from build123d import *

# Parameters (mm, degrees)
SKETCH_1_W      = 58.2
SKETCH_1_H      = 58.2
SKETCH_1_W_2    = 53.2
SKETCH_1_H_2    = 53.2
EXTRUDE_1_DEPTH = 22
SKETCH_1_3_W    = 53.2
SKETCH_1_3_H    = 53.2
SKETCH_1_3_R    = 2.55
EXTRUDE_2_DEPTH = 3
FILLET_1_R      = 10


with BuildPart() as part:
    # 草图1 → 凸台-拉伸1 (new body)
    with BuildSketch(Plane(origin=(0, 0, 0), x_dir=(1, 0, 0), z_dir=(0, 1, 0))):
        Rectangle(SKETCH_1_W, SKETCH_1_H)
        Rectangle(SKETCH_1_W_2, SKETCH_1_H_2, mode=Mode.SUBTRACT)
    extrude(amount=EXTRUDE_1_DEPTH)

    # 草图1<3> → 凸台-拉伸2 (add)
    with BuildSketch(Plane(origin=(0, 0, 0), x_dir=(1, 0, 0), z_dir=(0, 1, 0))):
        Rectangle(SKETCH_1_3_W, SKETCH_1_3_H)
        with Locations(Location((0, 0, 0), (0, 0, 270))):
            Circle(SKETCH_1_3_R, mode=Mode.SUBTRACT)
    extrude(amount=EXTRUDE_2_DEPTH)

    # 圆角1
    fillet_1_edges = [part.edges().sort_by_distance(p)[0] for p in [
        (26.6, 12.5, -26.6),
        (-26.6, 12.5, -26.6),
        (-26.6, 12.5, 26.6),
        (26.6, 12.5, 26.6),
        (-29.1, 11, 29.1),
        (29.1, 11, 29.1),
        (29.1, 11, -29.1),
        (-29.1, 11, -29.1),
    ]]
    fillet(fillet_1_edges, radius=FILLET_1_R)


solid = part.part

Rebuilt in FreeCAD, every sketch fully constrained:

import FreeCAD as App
import Part
import Sketcher
from FreeCAD import Vector


def edges_at(feature, points):
    """Names of the edges that pass closest to the given points."""
    edges = feature.Shape.Edges
    near = lambda p: min(range(len(edges)), key=lambda i: edges[i].distToShape(Part.Vertex(*p))[0])
    return sorted({f"Edge{near(p) + 1}" for p in points})

doc = App.newDocument("Part")
body = doc.addObject("PartDesign::Body", "Body")

sketch1 = body.newObject("Sketcher::SketchObject", "Sketch")
sketch1.AttachmentSupport = (doc.getObject("XZ_Plane"), [""])
sketch1.MapMode = "FlatFace"
sketch1.addGeometry(Part.LineSegment(Vector(-29, -29, 0), Vector(-29, 29, 0)), False)
sketch1.addGeometry(Part.LineSegment(Vector(-29, 29, 0), Vector(29, 29, 0)), False)
sketch1.addGeometry(Part.LineSegment(Vector(29, 29, 0), Vector(29, -29, 0)), False)
sketch1.addGeometry(Part.LineSegment(Vector(29, -29, 0), Vector(-29, -29, 0)), False)
sketch1.addGeometry(Part.LineSegment(Vector(27, 27, 0), Vector(-27, 27, 0)), False)
sketch1.addGeometry(Part.LineSegment(Vector(-27, 27, 0), Vector(-27, -27, 0)), False)
sketch1.addGeometry(Part.LineSegment(Vector(-27, -27, 0), Vector(27, -27, 0)), False)
sketch1.addGeometry(Part.LineSegment(Vector(27, -27, 0), Vector(27, 27, 0)), False)
sketch1.addConstraint(Sketcher.Constraint("Coincident", 0, 2, 1, 1))
sketch1.addConstraint(Sketcher.Constraint("Coincident", 1, 2, 2, 1))
sketch1.addConstraint(Sketcher.Constraint("Coincident", 2, 2, 3, 1))
sketch1.addConstraint(Sketcher.Constraint("Coincident", 3, 2, 0, 1))
sketch1.addConstraint(Sketcher.Constraint("Coincident", 4, 2, 5, 1))
sketch1.addConstraint(Sketcher.Constraint("Coincident", 5, 2, 6, 1))
sketch1.addConstraint(Sketcher.Constraint("Coincident", 6, 2, 7, 1))
sketch1.addConstraint(Sketcher.Constraint("Coincident", 7, 2, 4, 1))
sketch1.addConstraint(Sketcher.Constraint("Vertical", 0))
sketch1.addConstraint(Sketcher.Constraint("Horizontal", 1))
sketch1.addConstraint(Sketcher.Constraint("Vertical", 2))
sketch1.addConstraint(Sketcher.Constraint("Horizontal", 3))
sketch1.addConstraint(Sketcher.Constraint("Horizontal", 4))
sketch1.addConstraint(Sketcher.Constraint("Vertical", 5))
sketch1.addConstraint(Sketcher.Constraint("Horizontal", 6))
sketch1.addConstraint(Sketcher.Constraint("Vertical", 7))
sketch1.addConstraint(Sketcher.Constraint("Symmetric", 0, 2, 2, 2, -1, 1))
sketch1.addConstraint(Sketcher.Constraint("Symmetric", 4, 2, 6, 2, -1, 1))
sketch1.addConstraint(Sketcher.Constraint("Equal", 3, 0))
sketch1.addConstraint(Sketcher.Constraint("Equal", 6, 5))
sketch1.addConstraint(Sketcher.Constraint("DistanceX", 1, 1, 1, 2, 58.2))
sketch1.addConstraint(Sketcher.Constraint("DistanceX", 4, 2, 4, 1, 53.2))
pad1 = body.newObject("PartDesign::Pad", "Pad")
pad1.Profile = sketch1
pad1.Length = 22
pad1.Reversed = True

sketch2 = body.newObject("Sketcher::SketchObject", "Sketch001")
sketch2.AttachmentSupport = (doc.getObject("XZ_Plane"), [""])
sketch2.MapMode = "FlatFace"
sketch2.addGeometry(Part.LineSegment(Vector(-26.6, -26.6, 0), Vector(-26.6, 26.6, 0)), False)
sketch2.addGeometry(Part.LineSegment(Vector(-26.6, 26.6, 0), Vector(26.6, 26.6, 0)), False)
sketch2.addGeometry(Part.LineSegment(Vector(26.6, 26.6, 0), Vector(26.6, -26.6, 0)), False)
sketch2.addGeometry(Part.LineSegment(Vector(26.6, -26.6, 0), Vector(-26.6, -26.6, 0)), False)
sketch2.addGeometry(Part.Circle(Vector(0, 0, 0), Vector(0, 0, 1), 2.5), False)
sketch2.addConstraint(Sketcher.Constraint("Coincident", 0, 2, 1, 1))
sketch2.addConstraint(Sketcher.Constraint("Coincident", 1, 2, 2, 1))
sketch2.addConstraint(Sketcher.Constraint("Coincident", 2, 2, 3, 1))
sketch2.addConstraint(Sketcher.Constraint("Coincident", 3, 2, 0, 1))
sketch2.addConstraint(Sketcher.Constraint("Vertical", 0))
sketch2.addConstraint(Sketcher.Constraint("Horizontal", 1))
sketch2.addConstraint(Sketcher.Constraint("Vertical", 2))
sketch2.addConstraint(Sketcher.Constraint("Horizontal", 3))
sketch2.addConstraint(Sketcher.Constraint("Coincident", 4, 3, -1, 1))
sketch2.addConstraint(Sketcher.Constraint("Symmetric", 0, 2, 2, 2, -1, 1))
sketch2.addConstraint(Sketcher.Constraint("Equal", 3, 0))
sketch2.addConstraint(Sketcher.Constraint("Diameter", 4, 5.1))
sketch2.addConstraint(Sketcher.Constraint("DistanceX", 1, 1, 1, 2, 53.2))
pad2 = body.newObject("PartDesign::Pad", "Pad001")
pad2.Profile = sketch2
pad2.Length = 3
pad2.Reversed = True
doc.recompute()

fillet = body.newObject("PartDesign::Fillet", "Fillet")
fillet.Base = (pad2, edges_at(pad2, [
    (26.6, 12.5, -26.6),
    (-26.6, 12.5, -26.6),
    (-26.6, 12.5, 26.6),
    (26.6, 12.5, 26.6),
    (-29.1, 11, 29.1),
    (29.1, 11, 29.1),
    (29.1, 11, -29.1),
    (-29.1, 11, -29.1),
]))
fillet.Radius = 10

doc.recompute()
